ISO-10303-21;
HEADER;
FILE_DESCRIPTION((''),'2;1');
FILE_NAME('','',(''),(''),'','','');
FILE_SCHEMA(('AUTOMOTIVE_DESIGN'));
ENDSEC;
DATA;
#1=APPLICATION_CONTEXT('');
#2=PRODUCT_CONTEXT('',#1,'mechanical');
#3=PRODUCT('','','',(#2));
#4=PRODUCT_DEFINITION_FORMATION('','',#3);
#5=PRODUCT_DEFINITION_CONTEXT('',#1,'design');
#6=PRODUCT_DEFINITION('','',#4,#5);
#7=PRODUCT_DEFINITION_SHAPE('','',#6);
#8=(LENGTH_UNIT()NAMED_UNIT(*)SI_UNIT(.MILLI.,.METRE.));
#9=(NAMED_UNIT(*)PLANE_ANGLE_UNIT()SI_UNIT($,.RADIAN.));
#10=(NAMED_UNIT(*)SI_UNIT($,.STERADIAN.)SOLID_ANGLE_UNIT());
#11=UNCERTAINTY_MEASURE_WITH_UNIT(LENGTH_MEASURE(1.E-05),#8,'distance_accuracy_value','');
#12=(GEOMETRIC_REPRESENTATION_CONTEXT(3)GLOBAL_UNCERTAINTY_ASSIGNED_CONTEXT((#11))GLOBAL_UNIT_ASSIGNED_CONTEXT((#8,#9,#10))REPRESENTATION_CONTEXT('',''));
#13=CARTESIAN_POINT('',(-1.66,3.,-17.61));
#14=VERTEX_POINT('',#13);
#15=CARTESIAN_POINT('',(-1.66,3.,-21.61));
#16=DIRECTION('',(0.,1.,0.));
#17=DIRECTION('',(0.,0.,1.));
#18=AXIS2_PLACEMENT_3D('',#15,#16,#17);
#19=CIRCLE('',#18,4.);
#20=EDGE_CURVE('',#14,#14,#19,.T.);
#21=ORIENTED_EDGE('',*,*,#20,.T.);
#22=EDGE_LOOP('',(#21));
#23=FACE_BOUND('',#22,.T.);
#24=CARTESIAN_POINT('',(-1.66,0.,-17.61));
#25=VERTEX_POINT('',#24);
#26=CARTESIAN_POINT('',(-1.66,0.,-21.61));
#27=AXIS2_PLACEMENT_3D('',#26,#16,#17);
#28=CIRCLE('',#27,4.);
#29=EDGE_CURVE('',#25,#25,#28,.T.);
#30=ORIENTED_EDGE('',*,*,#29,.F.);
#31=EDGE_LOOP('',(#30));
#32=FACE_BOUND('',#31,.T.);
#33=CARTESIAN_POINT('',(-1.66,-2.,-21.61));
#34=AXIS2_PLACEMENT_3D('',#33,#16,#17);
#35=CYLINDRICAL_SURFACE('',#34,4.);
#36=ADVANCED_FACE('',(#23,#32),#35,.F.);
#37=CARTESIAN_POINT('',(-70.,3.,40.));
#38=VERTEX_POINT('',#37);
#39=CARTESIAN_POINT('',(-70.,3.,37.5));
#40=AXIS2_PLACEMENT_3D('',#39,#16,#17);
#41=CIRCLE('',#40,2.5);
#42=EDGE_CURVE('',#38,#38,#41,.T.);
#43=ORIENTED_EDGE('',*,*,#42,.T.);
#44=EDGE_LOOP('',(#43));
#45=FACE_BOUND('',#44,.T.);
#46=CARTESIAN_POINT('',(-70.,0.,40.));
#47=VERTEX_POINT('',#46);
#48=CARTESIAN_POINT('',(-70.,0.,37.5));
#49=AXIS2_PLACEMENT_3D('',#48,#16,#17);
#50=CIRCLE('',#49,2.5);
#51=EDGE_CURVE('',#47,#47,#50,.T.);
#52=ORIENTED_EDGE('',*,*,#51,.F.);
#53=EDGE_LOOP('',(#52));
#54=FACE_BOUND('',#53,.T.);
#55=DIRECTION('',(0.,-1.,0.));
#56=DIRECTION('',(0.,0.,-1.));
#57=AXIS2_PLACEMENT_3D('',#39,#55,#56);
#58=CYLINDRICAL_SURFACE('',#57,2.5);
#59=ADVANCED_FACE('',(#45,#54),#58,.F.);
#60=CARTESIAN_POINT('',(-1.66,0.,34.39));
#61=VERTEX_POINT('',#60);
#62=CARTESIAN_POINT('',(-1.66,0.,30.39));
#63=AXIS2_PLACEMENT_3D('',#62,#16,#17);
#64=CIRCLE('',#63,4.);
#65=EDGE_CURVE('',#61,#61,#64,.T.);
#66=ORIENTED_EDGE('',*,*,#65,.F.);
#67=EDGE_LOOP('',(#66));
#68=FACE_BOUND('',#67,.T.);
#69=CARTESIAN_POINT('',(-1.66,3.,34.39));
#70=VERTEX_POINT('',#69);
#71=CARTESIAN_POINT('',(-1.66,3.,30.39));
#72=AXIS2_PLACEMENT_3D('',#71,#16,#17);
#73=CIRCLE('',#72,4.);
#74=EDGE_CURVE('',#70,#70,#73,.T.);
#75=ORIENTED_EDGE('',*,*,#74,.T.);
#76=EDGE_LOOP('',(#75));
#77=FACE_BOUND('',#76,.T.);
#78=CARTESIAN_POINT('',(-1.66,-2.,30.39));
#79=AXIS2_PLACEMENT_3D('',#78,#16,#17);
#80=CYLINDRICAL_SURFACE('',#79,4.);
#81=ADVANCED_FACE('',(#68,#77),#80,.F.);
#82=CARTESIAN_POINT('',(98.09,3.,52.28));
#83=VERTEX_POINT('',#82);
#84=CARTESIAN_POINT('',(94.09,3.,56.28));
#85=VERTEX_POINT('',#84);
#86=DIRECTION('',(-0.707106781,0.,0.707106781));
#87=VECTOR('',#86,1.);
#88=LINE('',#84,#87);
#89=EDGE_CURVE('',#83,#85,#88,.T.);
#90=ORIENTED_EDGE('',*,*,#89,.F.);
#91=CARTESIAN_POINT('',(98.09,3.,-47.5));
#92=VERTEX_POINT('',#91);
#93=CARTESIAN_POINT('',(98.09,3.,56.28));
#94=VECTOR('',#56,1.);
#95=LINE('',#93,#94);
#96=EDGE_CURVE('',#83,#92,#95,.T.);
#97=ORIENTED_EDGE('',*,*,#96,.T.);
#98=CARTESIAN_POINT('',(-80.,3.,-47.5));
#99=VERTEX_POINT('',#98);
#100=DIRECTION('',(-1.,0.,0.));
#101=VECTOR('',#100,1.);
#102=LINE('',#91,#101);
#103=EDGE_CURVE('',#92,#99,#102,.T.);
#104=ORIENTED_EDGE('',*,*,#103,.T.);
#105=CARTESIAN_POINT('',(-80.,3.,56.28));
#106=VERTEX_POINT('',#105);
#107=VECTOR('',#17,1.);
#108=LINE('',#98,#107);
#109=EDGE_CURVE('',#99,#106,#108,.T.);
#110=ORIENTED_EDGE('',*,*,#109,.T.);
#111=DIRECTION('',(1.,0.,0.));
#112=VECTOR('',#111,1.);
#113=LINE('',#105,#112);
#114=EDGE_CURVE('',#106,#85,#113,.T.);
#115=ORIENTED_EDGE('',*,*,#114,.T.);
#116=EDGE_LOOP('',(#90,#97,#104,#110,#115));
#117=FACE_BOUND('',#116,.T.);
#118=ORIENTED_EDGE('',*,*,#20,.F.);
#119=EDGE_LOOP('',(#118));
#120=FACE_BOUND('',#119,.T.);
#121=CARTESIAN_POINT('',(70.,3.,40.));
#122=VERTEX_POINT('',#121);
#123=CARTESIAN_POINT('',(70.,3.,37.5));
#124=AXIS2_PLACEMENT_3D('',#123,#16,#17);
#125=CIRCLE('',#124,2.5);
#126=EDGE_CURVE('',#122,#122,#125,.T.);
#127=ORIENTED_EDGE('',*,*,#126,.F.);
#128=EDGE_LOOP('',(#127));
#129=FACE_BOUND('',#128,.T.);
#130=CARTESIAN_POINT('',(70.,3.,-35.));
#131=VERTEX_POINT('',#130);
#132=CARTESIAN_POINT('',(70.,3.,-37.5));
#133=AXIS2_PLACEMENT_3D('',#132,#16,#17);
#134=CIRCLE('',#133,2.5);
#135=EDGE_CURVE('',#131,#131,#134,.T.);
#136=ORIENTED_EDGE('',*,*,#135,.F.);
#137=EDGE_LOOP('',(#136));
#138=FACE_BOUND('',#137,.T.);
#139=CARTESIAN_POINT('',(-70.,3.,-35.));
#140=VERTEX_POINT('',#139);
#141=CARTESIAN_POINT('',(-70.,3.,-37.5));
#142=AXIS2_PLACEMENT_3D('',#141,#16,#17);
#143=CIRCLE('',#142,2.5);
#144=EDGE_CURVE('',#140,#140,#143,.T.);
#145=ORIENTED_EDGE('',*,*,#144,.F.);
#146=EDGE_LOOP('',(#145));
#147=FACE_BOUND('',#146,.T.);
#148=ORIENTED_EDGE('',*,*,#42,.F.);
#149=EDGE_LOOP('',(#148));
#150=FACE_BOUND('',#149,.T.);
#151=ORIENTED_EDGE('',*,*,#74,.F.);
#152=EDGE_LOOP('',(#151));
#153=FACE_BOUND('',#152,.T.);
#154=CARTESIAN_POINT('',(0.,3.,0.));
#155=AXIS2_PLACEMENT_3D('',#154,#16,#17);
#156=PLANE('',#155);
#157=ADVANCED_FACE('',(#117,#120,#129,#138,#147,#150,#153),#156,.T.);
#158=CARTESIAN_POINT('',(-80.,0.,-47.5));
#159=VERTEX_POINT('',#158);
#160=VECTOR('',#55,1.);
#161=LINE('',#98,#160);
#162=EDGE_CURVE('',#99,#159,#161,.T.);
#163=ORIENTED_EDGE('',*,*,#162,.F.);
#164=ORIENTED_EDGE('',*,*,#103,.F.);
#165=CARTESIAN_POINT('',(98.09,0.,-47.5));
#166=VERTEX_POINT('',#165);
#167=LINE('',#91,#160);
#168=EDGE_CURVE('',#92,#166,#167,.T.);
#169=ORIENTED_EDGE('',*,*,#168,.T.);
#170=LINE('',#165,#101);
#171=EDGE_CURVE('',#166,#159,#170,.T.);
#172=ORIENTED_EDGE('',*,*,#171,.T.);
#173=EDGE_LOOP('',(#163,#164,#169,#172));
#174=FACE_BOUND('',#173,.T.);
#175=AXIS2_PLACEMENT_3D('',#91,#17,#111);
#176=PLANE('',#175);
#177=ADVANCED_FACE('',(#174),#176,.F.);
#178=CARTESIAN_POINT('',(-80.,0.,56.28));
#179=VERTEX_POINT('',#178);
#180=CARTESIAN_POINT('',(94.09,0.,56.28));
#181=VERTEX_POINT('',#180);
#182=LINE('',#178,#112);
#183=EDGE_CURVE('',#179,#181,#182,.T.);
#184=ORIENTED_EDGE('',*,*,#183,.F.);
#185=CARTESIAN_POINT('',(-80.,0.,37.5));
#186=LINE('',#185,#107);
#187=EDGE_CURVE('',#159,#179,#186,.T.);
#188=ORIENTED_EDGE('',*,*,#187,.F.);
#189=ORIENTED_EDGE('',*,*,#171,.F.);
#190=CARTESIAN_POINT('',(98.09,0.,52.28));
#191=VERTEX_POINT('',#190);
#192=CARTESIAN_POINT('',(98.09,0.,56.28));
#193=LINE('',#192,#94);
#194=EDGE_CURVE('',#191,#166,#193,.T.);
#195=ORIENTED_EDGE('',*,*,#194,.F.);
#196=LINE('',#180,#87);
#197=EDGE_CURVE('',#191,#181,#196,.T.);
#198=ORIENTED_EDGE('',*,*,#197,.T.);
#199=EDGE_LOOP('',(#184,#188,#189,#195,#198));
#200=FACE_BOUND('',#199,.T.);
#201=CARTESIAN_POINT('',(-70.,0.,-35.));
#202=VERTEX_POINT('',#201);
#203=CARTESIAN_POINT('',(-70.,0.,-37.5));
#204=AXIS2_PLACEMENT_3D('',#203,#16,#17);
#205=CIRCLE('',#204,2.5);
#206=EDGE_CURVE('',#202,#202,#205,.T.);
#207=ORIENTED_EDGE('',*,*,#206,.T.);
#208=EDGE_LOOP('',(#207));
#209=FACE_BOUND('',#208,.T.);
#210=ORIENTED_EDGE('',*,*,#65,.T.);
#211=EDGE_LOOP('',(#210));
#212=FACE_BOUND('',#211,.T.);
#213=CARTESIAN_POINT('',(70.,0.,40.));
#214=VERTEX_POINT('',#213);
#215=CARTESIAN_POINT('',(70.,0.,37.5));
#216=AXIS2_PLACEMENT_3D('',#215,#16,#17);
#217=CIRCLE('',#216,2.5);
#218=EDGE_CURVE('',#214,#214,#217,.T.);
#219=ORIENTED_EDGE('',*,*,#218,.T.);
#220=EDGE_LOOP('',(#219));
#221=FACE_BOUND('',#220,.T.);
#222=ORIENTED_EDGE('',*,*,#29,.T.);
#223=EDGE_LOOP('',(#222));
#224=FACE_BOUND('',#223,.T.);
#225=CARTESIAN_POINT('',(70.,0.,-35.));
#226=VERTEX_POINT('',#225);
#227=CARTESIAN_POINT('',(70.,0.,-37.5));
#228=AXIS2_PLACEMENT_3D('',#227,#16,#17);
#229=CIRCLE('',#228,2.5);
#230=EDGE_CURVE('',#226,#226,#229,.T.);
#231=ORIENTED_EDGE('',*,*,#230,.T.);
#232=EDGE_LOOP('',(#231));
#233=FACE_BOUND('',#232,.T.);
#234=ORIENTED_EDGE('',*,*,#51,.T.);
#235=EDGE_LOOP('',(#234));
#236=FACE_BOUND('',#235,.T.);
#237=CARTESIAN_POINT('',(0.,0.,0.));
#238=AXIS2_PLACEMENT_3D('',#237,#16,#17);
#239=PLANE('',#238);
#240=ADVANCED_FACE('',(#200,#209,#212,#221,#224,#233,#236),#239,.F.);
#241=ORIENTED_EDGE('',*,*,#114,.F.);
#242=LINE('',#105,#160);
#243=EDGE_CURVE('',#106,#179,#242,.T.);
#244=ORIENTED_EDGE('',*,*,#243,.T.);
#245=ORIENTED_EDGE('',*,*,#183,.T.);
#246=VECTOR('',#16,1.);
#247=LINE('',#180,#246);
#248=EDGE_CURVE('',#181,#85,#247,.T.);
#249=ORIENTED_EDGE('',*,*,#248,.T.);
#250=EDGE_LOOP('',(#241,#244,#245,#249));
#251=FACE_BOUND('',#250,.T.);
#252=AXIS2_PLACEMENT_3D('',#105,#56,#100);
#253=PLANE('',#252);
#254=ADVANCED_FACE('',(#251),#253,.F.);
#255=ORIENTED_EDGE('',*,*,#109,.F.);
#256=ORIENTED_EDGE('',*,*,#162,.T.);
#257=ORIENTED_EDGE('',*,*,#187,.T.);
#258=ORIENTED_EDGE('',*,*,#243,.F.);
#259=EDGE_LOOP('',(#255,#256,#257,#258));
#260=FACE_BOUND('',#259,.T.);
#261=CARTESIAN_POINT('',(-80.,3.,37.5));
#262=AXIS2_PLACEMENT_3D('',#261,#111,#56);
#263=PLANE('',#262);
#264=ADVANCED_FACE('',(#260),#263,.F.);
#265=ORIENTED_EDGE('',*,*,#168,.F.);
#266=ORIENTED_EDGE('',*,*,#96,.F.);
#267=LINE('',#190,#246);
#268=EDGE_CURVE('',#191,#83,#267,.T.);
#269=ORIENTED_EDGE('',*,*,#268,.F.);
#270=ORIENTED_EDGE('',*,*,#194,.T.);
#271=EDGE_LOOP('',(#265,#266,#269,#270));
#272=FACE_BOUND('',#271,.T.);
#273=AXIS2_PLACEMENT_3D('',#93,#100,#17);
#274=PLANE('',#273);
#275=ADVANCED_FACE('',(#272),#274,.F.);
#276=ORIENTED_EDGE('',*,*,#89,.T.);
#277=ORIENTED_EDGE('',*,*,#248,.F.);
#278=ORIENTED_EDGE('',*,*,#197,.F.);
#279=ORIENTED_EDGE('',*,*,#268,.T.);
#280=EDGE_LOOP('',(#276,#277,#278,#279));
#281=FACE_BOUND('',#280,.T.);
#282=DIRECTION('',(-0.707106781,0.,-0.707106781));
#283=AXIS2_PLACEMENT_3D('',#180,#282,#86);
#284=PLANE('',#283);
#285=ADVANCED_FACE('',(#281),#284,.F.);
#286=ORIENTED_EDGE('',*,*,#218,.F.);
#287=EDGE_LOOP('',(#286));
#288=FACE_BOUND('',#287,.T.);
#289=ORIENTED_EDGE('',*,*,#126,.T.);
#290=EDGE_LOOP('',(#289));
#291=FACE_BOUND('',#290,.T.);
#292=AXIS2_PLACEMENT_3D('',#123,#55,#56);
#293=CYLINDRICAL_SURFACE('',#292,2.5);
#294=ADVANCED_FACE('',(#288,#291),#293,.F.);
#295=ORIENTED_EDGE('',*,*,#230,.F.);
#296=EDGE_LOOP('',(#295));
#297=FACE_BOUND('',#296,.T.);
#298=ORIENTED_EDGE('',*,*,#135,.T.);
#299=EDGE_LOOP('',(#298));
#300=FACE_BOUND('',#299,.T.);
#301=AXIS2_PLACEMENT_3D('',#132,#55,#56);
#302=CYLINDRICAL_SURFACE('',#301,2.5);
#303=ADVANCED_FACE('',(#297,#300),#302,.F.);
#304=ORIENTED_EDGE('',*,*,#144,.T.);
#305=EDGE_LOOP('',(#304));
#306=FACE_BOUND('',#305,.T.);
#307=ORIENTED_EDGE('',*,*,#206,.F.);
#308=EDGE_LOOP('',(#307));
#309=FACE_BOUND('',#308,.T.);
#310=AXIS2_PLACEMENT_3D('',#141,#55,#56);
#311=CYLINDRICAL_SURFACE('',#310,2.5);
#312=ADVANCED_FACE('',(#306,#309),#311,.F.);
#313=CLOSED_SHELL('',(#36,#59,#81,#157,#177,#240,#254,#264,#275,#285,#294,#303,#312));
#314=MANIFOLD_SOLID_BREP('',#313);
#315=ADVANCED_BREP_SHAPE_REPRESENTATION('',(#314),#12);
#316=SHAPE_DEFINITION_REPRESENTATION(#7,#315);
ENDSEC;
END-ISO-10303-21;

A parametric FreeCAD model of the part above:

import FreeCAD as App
import Part
import Sketcher

V = App.Vector


def add_polygon(sketch, points):
    """Adds a closed chain of lines whose ends are joined by coincident constraints."""
    first, n = sketch.GeometryCount, len(points)
    for a, b in zip(points, points[1:] + points[:1]):
        sketch.addGeometry(Part.LineSegment(App.Vector(*a, 0), App.Vector(*b, 0)), False)
    for i in range(n):
        sketch.addConstraint(Sketcher.Constraint("Coincident", first + i, 2, first + (i + 1) % n, 1))

doc = App.newDocument("Part")
body = doc.addObject("PartDesign::Body", "Body")

# Sketch on XZ plane
sketch1 = doc.addObject("Sketcher::SketchObject", "Sketch")
body.addObject(sketch1)
sketch1.AttachmentSupport = (doc.XZ_Plane, [""])
sketch1.MapMode = "FlatFace"
add_polygon(sketch1, [(-80, 56.3), (98.1, 56.3), (98.1, -47.5), (-80, -47.5)])  # lines 0-3
sketch1.addGeometry(Part.Circle(V(-70, 37.5, 0), V(0, 0, 1), 2.5), False)  # 4
sketch1.addGeometry(Part.Circle(V(70, 37.5, 0), V(0, 0, 1), 2.5), False)  # 5
sketch1.addGeometry(Part.Circle(V(-70, -37.5, 0), V(0, 0, 1), 2.5), False)  # 6
sketch1.addGeometry(Part.Circle(V(70, -37.5, 0), V(0, 0, 1), 2.5), False)  # 7
sketch1.addConstraint([
    Sketcher.Constraint("Horizontal", 0),
    Sketcher.Constraint("Vertical", 1),
    Sketcher.Constraint("Horizontal", 2),
    Sketcher.Constraint("Vertical", 3),
    Sketcher.Constraint("Equal", 4, 5),
    Sketcher.Constraint("Equal", 5, 6),
    Sketcher.Constraint("Equal", 6, 7),
    Sketcher.Constraint("Symmetric", 5, 3, 6, 3, -1, 1),
    Sketcher.Constraint("Symmetric", 4, 3, 7, 3, -1, 1),
    Sketcher.Constraint("Symmetric", 4, 3, 5, 3, -2),
    Sketcher.Constraint("Diameter", 4, 5.0),
    Sketcher.Constraint("DistanceX", 4, 3, -1, 1, 70.0),
    Sketcher.Constraint("DistanceX", 2, 2, -1, 1, 80.0),
    Sketcher.Constraint("DistanceY", 6, 3, 4, 3, 75.0),
    Sketcher.Constraint("DistanceY", 1, 2, 7, 3, 10.0),
    Sketcher.Constraint("DistanceX", 0, 1, 0, 2, 178.09),
    Sketcher.Constraint("DistanceY", 1, 2, 1, 1, 103.78),
])
pad1 = doc.addObject("PartDesign::Pad", "Pad")
body.addObject(pad1)
pad1.Profile = sketch1
pad1.Length = 3
pad1.Reversed = True

# Sketch on XZ plane
sketch2 = doc.addObject("Sketcher::SketchObject", "Sketch001")
body.addObject(sketch2)
sketch2.AttachmentSupport = (doc.XZ_Plane, [""])
sketch2.MapMode = "FlatFace"
sketch2.AttachmentOffset = App.Placement(V(0, 0, -3), App.Rotation())
add_polygon(sketch2, [(94.1, 56.3), (98.1, 56.3), (98.1, 52.3)])  # lines 0-2
sketch2.addConstraint([
    Sketcher.Constraint("Horizontal", 0),
    Sketcher.Constraint("Vertical", 1),
    Sketcher.Constraint("Equal", 0, 1),
    Sketcher.Constraint("DistanceX", 0, 1, 0, 2, 4.0),
    Sketcher.Constraint("DistanceX", -1, 1, 0, 2, 98.09),
    Sketcher.Constraint("DistanceY", -1, 1, 0, 2, 56.28),
])
pocket1 = doc.addObject("PartDesign::Pocket", "Pocket")
body.addObject(pocket1)
pocket1.Profile = sketch2
pocket1.Type = "ThroughAll"
pocket1.Reversed = True

# Sketch on XZ plane
sketch3 = doc.addObject("Sketcher::SketchObject", "Sketch002")
body.addObject(sketch3)
sketch3.AttachmentSupport = (doc.XZ_Plane, [""])
sketch3.MapMode = "FlatFace"
sketch3.AttachmentOffset = App.Placement(V(0, 0, -3), App.Rotation())
sketch3.addGeometry([
    Part.Circle(V(-1.7, -21.6, 0), V(0, 0, 1), 4),
    Part.Circle(V(-1.7, 30.4, 0), V(0, 0, 1), 4),
], False)
sketch3.addConstraint([
    Sketcher.Constraint("Equal", 0, 1),
    Sketcher.Constraint("Vertical", 0, 3, 1, 3),
    Sketcher.Constraint("Diameter", 0, 8.0),
    Sketcher.Constraint("DistanceY", 0, 3, 1, 3, 52.0),
    Sketcher.Constraint("DistanceX", 0, 3, -1, 1, 1.66),
    Sketcher.Constraint("DistanceY", 0, 3, -1, 1, 21.61),
])
pocket2 = doc.addObject("PartDesign::Pocket", "Pocket001")
body.addObject(pocket2)
pocket2.Profile = sketch3
pocket2.Length = 5
pocket2.Reversed = True

doc.recompute()
